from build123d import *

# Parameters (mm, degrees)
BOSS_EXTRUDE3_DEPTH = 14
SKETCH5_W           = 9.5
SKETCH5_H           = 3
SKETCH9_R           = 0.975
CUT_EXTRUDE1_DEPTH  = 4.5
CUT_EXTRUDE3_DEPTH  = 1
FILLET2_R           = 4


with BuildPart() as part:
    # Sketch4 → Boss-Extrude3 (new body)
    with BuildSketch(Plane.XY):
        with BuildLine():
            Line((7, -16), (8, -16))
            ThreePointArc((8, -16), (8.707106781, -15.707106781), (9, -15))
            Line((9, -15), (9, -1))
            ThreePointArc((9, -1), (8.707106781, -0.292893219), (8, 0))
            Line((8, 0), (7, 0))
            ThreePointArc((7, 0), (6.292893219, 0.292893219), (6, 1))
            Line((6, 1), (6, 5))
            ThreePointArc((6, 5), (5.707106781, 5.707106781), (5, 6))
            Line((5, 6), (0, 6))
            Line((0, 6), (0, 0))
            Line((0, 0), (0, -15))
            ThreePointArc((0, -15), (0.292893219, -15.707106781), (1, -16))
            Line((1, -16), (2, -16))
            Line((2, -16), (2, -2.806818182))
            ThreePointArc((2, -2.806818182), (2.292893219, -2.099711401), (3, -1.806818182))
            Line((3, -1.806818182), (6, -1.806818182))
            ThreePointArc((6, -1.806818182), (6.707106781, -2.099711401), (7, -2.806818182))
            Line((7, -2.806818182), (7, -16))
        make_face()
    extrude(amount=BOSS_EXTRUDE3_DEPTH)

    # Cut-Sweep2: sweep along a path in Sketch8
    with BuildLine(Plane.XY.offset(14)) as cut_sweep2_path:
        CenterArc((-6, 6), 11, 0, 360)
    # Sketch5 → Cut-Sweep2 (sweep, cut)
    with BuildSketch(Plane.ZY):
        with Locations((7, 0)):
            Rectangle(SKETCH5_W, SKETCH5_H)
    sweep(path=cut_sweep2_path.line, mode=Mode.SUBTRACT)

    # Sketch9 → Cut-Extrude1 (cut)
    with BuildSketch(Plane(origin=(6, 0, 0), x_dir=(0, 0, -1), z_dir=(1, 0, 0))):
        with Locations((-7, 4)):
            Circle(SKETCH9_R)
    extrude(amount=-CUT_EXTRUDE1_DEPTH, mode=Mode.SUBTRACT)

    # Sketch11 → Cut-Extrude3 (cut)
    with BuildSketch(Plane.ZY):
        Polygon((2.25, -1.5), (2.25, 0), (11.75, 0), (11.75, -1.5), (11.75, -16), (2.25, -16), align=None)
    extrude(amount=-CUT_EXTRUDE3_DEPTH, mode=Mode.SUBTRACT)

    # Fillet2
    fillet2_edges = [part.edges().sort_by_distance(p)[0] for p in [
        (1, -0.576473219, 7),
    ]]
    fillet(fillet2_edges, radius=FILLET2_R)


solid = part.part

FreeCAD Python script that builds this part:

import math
import FreeCAD as App
import Part
import Sketcher
Q = App.Units.Quantity


def edges_at(feature, points):
    """Names of the edges that pass closest to the given points."""
    edges = feature.Shape.Edges
    near = lambda p: min(range(len(edges)), key=lambda i: edges[i].distToShape(Part.Vertex(*p))[0])
    return sorted({f"Edge{near(p) + 1}" for p in points})


def add_polygon(sketch, points):
    """Adds a closed chain of lines whose ends are joined by coincident constraints."""
    first, n = sketch.GeometryCount, len(points)
    for a, b in zip(points, points[1:] + points[:1]):
        sketch.addGeometry(Part.LineSegment(App.Vector(*a, 0), App.Vector(*b, 0)), False)
    for i in range(n):
        sketch.addConstraint(Sketcher.Constraint("Coincident", first + i, 2, first + (i + 1) % n, 1))

doc = App.newDocument("Part")
body = doc.addObject("PartDesign::Body", "Body")

sketch1 = body.newObject("Sketcher::SketchObject", "Sketch")
sketch1.AttachmentSupport = (doc.getObject("XY_Plane"), [""])
sketch1.MapMode = "FlatFace"
sketch1.addGeometry([
    Part.LineSegment(App.Vector(7, -16, 0), App.Vector(8, -16, 0)),
    Part.ArcOfCircle(Part.Circle(App.Vector(8, -15, 0), App.Vector(0, 0, 1), 1), math.radians(-90), math.radians(0)),
    Part.LineSegment(App.Vector(9, -15, 0), App.Vector(9, -1, 0)),
    Part.ArcOfCircle(Part.Circle(App.Vector(8, -1, 0), App.Vector(0, 0, 1), 1), math.radians(0), math.radians(90)),
    Part.LineSegment(App.Vector(8, 0, 0), App.Vector(7, 0, 0)),
    Part.ArcOfCircle(Part.Circle(App.Vector(7, 1, 0), App.Vector(0, 0, 1), 1), math.radians(-180), math.radians(-90)),
    Part.LineSegment(App.Vector(6, 1, 0), App.Vector(6, 5, 0)),
    Part.ArcOfCircle(Part.Circle(App.Vector(5, 5, 0), App.Vector(0, 0, 1), 1), math.radians(0), math.radians(90)),
    Part.LineSegment(App.Vector(5, 6, 0), App.Vector(0, 6, 0)),
    Part.LineSegment(App.Vector(0, 6, 0), App.Vector(0, -15, 0)),
    Part.ArcOfCircle(Part.Circle(App.Vector(1, -15, 0), App.Vector(0, 0, 1), 1), math.radians(-180), math.radians(-90)),
    Part.LineSegment(App.Vector(1, -16, 0), App.Vector(2, -16, 0)),
    Part.LineSegment(App.Vector(2, -16, 0), App.Vector(2, -2.806818, 0)),
    Part.ArcOfCircle(Part.Circle(App.Vector(3, -2.806818, 0), App.Vector(0, 0, 1), 1), math.radians(90), math.radians(180)),
    Part.LineSegment(App.Vector(3, -1.806818, 0), App.Vector(6, -1.806818, 0)),
    Part.ArcOfCircle(Part.Circle(App.Vector(6, -2.806818, 0), App.Vector(0, 0, 1), 1), math.radians(0), math.radians(90)),
    Part.LineSegment(App.Vector(7, -2.806818, 0), App.Vector(7, -16, 0)),
], False)
sketch1.addConstraint([
    Sketcher.Constraint("Tangent", 0, 2, 1, 1),
    Sketcher.Constraint("Tangent", 1, 2, 2, 1),
    Sketcher.Constraint("Tangent", 2, 2, 3, 1),
    Sketcher.Constraint("Tangent", 3, 2, 4, 1),
    Sketcher.Constraint("Tangent", 4, 2, 5, 2),
    Sketcher.Constraint("Tangent", 5, 1, 6, 1),
    Sketcher.Constraint("Tangent", 6, 2, 7, 1),
    Sketcher.Constraint("Tangent", 7, 2, 8, 1),
    Sketcher.Constraint("Coincident", 8, 2, 9, 1),
    Sketcher.Constraint("Tangent", 9, 2, 10, 1),
    Sketcher.Constraint("Tangent", 10, 2, 11, 1),
    Sketcher.Constraint("Coincident", 11, 2, 12, 1),
    Sketcher.Constraint("Tangent", 12, 2, 13, 2),
    Sketcher.Constraint("Tangent", 13, 1, 14, 1),
    Sketcher.Constraint("Tangent", 14, 2, 15, 2),
    Sketcher.Constraint("Tangent", 15, 1, 16, 1),
    Sketcher.Constraint("Coincident", 16, 2, 0, 1),
    Sketcher.Constraint("Horizontal", 0),
    Sketcher.Constraint("Vertical", 2),
    Sketcher.Constraint("Horizontal", 4),
    Sketcher.Constraint("Vertical", 6),
    Sketcher.Constraint("Horizontal", 8),
    Sketcher.Constraint("Vertical", 9),
    Sketcher.Constraint("Horizontal", 11),
    Sketcher.Constraint("Vertical", 12),
    Sketcher.Constraint("Horizontal", 14),
    Sketcher.Constraint("Vertical", 16),
    Sketcher.Constraint("Equal", 1, 3),
    Sketcher.Constraint("Equal", 3, 5),
    Sketcher.Constraint("Equal", 5, 7),
    Sketcher.Constraint("Equal", 7, 10),
    Sketcher.Constraint("Equal", 10, 13),
    Sketcher.Constraint("Equal", 13, 15),
    Sketcher.Constraint("PointOnObject", 3, 2, -1),
    Sketcher.Constraint("PointOnObject", 8, 2, -2),
    Sketcher.Constraint("Horizontal", 1, 3, 10, 3),
    Sketcher.Constraint("Vertical", 15, 3, 5, 1),
    Sketcher.Constraint("Equal", 4, 11),
    Sketcher.Constraint("Radius", 1, Q("1 mm")),
    Sketcher.Constraint("DistanceX", 0, 1, 0, 2, Q("1 mm")),
    Sketcher.Constraint("DistanceX", 8, 2, 8, 1, Q("5 mm")),
    Sketcher.Constraint("DistanceY", 2, 1, 2, 2, Q("14 mm")),
    Sketcher.Constraint("DistanceY", 6, 1, 6, 2, Q("4 mm")),
    Sketcher.Constraint("DistanceY", 12, 1, 12, 2, Q("13.193182 mm")),
])
pad1 = body.newObject("PartDesign::Pad", "Pad")
pad1.Profile = sketch1
pad1.Length = 14

sketch2 = body.newObject("Sketcher::SketchObject", "Sketch001")
sketch2.AttachmentSupport = (doc.getObject("YZ_Plane"), [""])
sketch2.MapMode = "FlatFace"
add_polygon(sketch2, [(1.5, 2.25), (-1.5, 2.25), (-1.5, 11.75), (1.5, 11.75)])
sketch2.addConstraint([
    Sketcher.Constraint("Horizontal", 0),
    Sketcher.Constraint("Vertical", 1),
    Sketcher.Constraint("Horizontal", 2),
    Sketcher.Constraint("Vertical", 3),
    Sketcher.Constraint("DistanceX", 0, 2, 0, 1, Q("3 mm")),
    Sketcher.Constraint("DistanceY", 1, 1, 1, 2, Q("9.5 mm")),
    Sketcher.Constraint("DistanceX", 0, 2, -1, 1, Q("1.5 mm")),
    Sketcher.Constraint("DistanceY", -1, 1, 0, 2, Q("2.25 mm")),
])

sketch3 = body.newObject("Sketcher::SketchObject", "Sketch002")
sketch3.AttachmentSupport = (doc.getObject("XY_Plane"), [""])
sketch3.MapMode = "FlatFace"
sketch3.AttachmentOffset = App.Placement(App.Vector(0, 0, 14), App.Rotation())
sketch3.addGeometry(Part.Circle(App.Vector(-6, 6, 0), App.Vector(0, 0, 1), 11), False)
sketch3.addConstraint([
    Sketcher.Constraint("Diameter", 0, Q("22 mm")),
    Sketcher.Constraint("DistanceX", 0, 3, -1, 1, Q("6 mm")),
    Sketcher.Constraint("DistanceY", -1, 1, 0, 3, Q("6 mm")),
])
doc.recompute()

subtractivepipe = body.newObject("PartDesign::SubtractivePipe", "SubtractivePipe")
subtractivepipe.Profile = sketch2
subtractivepipe.Spine = (sketch3, ["Edge1"])

sketch4 = body.newObject("Sketcher::SketchObject", "Sketch003")
sketch4.AttachmentSupport = (doc.getObject("YZ_Plane"), [""])
sketch4.MapMode = "FlatFace"
sketch4.AttachmentOffset = App.Placement(App.Vector(0, 0, 6), App.Rotation())
sketch4.addGeometry(Part.Circle(App.Vector(4, 7, 0), App.Vector(0, 0, 1), 0.975), False)
sketch4.addConstraint([
    Sketcher.Constraint("Diameter", 0, Q("1.95 mm")),
    Sketcher.Constraint("DistanceX", -1, 1, 0, 3, Q("4 mm")),
    Sketcher.Constraint("DistanceY", -1, 1, 0, 3, Q("7 mm")),
])
pocket1 = body.newObject("PartDesign::Pocket", "Pocket")
pocket1.Profile = sketch4
pocket1.Length = 4.5

sketch5 = body.newObject("Sketcher::SketchObject", "Sketch004")
sketch5.AttachmentSupport = (doc.getObject("YZ_Plane"), [""])
sketch5.MapMode = "FlatFace"
add_polygon(sketch5, [(0, 2.25), (-16, 2.25), (-16, 11.75), (0, 11.75)])
sketch5.addConstraint([
    Sketcher.Constraint("Horizontal", 0),
    Sketcher.Constraint("Vertical", 1),
    Sketcher.Constraint("Horizontal", 2),
    Sketcher.Constraint("Vertical", 3),
    Sketcher.Constraint("PointOnObject", 2, 2, -2),
    Sketcher.Constraint("DistanceX", 0, 2, 0, 1, Q("16 mm")),
    Sketcher.Constraint("DistanceY", 1, 1, 1, 2, Q("9.5 mm")),
    Sketcher.Constraint("DistanceY", -1, 1, 0, 2, Q("2.25 mm")),
])
pocket2 = body.newObject("PartDesign::Pocket", "Pocket001")
pocket2.Profile = sketch5
pocket2.Length = 1
pocket2.Reversed = True
doc.recompute()

fillet = body.newObject("PartDesign::Fillet", "Fillet")
fillet.Base = (pocket2, edges_at(pocket2, [(1, -0.576, 7)]))
fillet.Radius = 4

doc.recompute()
